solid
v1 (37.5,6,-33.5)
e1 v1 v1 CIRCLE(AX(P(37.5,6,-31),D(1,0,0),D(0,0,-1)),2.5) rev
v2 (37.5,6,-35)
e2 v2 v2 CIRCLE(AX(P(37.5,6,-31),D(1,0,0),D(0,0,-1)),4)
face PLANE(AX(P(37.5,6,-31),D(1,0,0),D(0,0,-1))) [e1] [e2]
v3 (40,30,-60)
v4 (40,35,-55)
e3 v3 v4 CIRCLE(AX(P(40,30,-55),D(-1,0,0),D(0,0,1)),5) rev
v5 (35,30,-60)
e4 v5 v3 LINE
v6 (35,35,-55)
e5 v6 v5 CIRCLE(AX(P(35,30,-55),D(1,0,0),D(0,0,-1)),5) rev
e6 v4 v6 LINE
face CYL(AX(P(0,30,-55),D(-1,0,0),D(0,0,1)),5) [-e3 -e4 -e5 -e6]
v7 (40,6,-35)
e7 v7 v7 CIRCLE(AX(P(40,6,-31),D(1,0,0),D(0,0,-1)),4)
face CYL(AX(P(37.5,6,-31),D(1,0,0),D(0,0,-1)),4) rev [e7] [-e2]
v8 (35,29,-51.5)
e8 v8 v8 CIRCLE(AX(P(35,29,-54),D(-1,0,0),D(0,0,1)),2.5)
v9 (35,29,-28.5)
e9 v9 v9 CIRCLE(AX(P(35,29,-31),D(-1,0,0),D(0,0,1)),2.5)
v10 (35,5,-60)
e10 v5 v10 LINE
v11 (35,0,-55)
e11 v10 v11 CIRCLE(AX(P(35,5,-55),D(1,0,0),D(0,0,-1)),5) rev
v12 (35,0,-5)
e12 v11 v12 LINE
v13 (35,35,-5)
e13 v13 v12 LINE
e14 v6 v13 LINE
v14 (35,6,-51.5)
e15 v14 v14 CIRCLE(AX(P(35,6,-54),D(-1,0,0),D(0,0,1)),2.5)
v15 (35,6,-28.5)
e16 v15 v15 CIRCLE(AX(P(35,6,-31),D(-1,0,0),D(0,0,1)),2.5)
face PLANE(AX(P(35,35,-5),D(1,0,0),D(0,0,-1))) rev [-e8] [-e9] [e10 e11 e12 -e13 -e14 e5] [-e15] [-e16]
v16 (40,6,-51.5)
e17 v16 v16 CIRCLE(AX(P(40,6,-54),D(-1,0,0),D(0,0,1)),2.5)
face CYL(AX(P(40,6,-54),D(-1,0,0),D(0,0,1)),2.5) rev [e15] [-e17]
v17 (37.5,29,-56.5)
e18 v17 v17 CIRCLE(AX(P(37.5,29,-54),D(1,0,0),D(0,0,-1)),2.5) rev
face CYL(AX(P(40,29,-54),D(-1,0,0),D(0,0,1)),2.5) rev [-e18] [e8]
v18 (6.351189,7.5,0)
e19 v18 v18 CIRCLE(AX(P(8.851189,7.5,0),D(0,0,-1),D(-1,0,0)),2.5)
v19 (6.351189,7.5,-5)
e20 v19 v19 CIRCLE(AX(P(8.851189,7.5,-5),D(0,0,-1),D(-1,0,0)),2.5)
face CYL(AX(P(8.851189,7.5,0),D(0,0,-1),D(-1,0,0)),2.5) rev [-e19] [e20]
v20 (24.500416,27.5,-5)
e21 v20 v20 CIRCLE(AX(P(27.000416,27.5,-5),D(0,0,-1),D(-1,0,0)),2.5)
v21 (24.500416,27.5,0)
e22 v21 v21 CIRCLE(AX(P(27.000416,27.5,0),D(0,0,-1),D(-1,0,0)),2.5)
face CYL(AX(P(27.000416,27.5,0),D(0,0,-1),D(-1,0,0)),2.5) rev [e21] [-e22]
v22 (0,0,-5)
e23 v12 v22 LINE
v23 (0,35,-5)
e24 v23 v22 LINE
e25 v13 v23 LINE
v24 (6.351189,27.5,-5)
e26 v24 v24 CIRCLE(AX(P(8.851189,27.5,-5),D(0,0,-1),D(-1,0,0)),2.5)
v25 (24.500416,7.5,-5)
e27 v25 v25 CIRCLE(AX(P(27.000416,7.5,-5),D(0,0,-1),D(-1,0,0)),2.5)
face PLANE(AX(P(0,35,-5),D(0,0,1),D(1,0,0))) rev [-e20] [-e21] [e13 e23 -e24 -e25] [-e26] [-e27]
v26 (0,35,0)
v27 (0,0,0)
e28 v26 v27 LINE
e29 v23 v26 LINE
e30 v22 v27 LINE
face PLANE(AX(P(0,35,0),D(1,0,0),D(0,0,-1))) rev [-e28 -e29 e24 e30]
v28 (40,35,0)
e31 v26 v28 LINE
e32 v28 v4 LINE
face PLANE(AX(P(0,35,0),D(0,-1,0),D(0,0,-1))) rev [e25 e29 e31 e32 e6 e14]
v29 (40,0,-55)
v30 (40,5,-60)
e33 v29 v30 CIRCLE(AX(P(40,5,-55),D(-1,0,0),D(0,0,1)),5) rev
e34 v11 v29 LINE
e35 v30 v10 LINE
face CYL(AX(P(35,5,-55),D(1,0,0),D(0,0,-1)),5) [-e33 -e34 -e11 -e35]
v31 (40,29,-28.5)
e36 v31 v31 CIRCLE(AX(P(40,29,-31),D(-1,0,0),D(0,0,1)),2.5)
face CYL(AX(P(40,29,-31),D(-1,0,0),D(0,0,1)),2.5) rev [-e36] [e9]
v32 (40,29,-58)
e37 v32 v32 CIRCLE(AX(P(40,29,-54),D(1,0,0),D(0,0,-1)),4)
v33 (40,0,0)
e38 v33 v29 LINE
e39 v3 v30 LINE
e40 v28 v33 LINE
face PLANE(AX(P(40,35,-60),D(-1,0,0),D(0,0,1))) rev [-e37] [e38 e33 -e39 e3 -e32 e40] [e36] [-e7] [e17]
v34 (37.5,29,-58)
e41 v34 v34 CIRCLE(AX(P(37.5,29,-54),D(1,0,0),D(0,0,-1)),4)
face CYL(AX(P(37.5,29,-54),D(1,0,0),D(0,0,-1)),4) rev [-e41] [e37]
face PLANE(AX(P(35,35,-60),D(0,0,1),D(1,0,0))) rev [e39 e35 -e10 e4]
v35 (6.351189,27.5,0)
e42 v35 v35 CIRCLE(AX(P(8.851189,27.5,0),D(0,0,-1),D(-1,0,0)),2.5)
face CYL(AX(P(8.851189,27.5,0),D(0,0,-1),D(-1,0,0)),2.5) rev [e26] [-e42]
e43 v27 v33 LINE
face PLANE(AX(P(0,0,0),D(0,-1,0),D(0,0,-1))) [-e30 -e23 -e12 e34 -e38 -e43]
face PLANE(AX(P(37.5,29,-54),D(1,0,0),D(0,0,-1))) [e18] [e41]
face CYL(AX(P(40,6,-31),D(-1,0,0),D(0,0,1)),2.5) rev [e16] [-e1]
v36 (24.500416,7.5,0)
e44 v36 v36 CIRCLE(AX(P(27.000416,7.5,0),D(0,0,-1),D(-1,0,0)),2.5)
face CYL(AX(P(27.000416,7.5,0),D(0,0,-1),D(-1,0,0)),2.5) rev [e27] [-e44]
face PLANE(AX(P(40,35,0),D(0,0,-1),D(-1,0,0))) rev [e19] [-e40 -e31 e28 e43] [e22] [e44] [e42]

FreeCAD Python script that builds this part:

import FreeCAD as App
import Part
import Sketcher
from FreeCAD import Vector


def edges_at(feature, points):
    """Names of the edges that pass closest to the given points."""
    edges = feature.Shape.Edges
    near = lambda p: min(range(len(edges)), key=lambda i: edges[i].distToShape(Part.Vertex(*p))[0])
    return sorted({f"Edge{near(p) + 1}" for p in points})


def add_polygon(sketch, points):
    """Adds a closed chain of lines whose ends are joined by coincident constraints."""
    first, n = sketch.GeometryCount, len(points)
    for a, b in zip(points, points[1:] + points[:1]):
        sketch.addGeometry(Part.LineSegment(App.Vector(*a, 0), App.Vector(*b, 0)), False)
    for i in range(n):
        sketch.addConstraint(Sketcher.Constraint("Coincident", first + i, 2, first + (i + 1) % n, 1))

doc = App.newDocument("Part")
body = doc.addObject("PartDesign::Body", "Body")

# Sketch on XZ plane
sketch1 = body.newObject("Sketcher::SketchObject", "Sketch")
sketch1.AttachmentSupport = (doc.getObject("XZ_Plane"), [""])
sketch1.MapMode = "FlatFace"
add_polygon(sketch1, [(0, -5), (0, 0), (40, 0), (40, -60), (35, -60), (35, -5)])  # lines 0-5
sketch1.addConstraint([
    Sketcher.Constraint("Vertical", 0),
    Sketcher.Constraint("Horizontal", 1),
    Sketcher.Constraint("Vertical", 2),
    Sketcher.Constraint("Horizontal", 3),
    Sketcher.Constraint("Vertical", 4),
    Sketcher.Constraint("Horizontal", 5),
    Sketcher.Constraint("Coincident", 0, 2, -1, 1),
    Sketcher.Constraint("Equal", 3, 0),
    Sketcher.Constraint("DistanceX", 1, 1, 1, 2, 40.0),
    Sketcher.Constraint("DistanceX", 3, 2, 3, 1, 5.0),
    Sketcher.Constraint("DistanceY", 2, 2, 2, 1, 60.0),
])
pad1 = body.newObject("PartDesign::Pad", "Pad")
pad1.Profile = sketch1
pad1.Length = 35
pad1.Reversed = True
doc.recompute()

fillet = body.newObject("PartDesign::Fillet", "Fillet")
fillet.Base = (pad1, edges_at(pad1, [(37.5, 35, -60), (37.5, 0, -60)]))
fillet.Radius = 5

# Sketch on XY plane
sketch2 = body.newObject("Sketcher::SketchObject", "Sketch001")
sketch2.AttachmentSupport = (doc.getObject("XY_Plane"), [""])
sketch2.MapMode = "FlatFace"
sketch2.AttachmentOffset = App.Placement(Vector(0, 0, -5), App.Rotation())
sketch2.addGeometry([
    Part.Circle(Vector(27, 27.5, 0), Vector(0, 0, 1), 2.5),
    Part.Circle(Vector(8.9, 27.5, 0), Vector(0, 0, 1), 2.5),
    Part.Circle(Vector(27, 7.5, 0), Vector(0, 0, 1), 2.5),
    Part.Circle(Vector(8.9, 7.5, 0), Vector(0, 0, 1), 2.5),
], False)
sketch2.addConstraint([
    Sketcher.Constraint("Equal", 0, 1),
    Sketcher.Constraint("Equal", 1, 2),
    Sketcher.Constraint("Equal", 2, 3),
    Sketcher.Constraint("Horizontal", 0, 3, 1, 3),
    Sketcher.Constraint("Horizontal", 2, 3, 3, 3),
    Sketcher.Constraint("Vertical", 0, 3, 2, 3),
    Sketcher.Constraint("Vertical", 1, 3, 3, 3),
    Sketcher.Constraint("Diameter", 0, 5.0),
    Sketcher.Constraint("DistanceY", 2, 3, 0, 3, 20.0),
    Sketcher.Constraint("DistanceY", -1, 1, 0, 3, 27.5),
    Sketcher.Constraint("DistanceX", -1, 1, 1, 3, 8.851189),
    Sketcher.Constraint("DistanceX", -1, 1, 0, 3, 27.000416),
])
pocket1 = body.newObject("PartDesign::Pocket", "Pocket")
pocket1.Profile = sketch2
pocket1.Type = "ThroughAll"
pocket1.Reversed = True

# Sketch on YZ plane
sketch3 = body.newObject("Sketcher::SketchObject", "Sketch002")
sketch3.AttachmentSupport = (doc.getObject("YZ_Plane"), [""])
sketch3.MapMode = "FlatFace"
sketch3.AttachmentOffset = App.Placement(Vector(0, 0, 35), App.Rotation())
sketch3.addGeometry([
    Part.Circle(Vector(29, -31, 0), Vector(0, 0, 1), 2.5),
    Part.Circle(Vector(6, -54, 0), Vector(0, 0, 1), 2.5),
    Part.Circle(Vector(29, -54, 0), Vector(0, 0, 1), 2.5),
    Part.Circle(Vector(6, -31, 0), Vector(0, 0, 1), 2.5),
], False)
sketch3.addConstraint([
    Sketcher.Constraint("Equal", 0, 1),
    Sketcher.Constraint("Equal", 1, 2),
    Sketcher.Constraint("Equal", 2, 3),
    Sketcher.Constraint("Horizontal", 1, 3, 2, 3),
    Sketcher.Constraint("Horizontal", 0, 3, 3, 3),
    Sketcher.Constraint("Vertical", 0, 3, 2, 3),
    Sketcher.Constraint("Vertical", 1, 3, 3, 3),
    Sketcher.Constraint("Diameter", 0, 5.0),
    Sketcher.Constraint("DistanceX", -1, 1, 0, 3, 29.0),
    Sketcher.Constraint("DistanceY", 0, 3, -1, 1, 31.0),
    Sketcher.Constraint("DistanceX", -1, 1, 1, 3, 6.0),
    Sketcher.Constraint("DistanceY", 1, 3, -1, 1, 54.0),
])
pocket2 = body.newObject("PartDesign::Pocket", "Pocket001")
pocket2.Profile = sketch3
pocket2.Type = "ThroughAll"
pocket2.Reversed = True

# Sketch on YZ plane
sketch4 = body.newObject("Sketcher::SketchObject", "Sketch003")
sketch4.AttachmentSupport = (doc.getObject("YZ_Plane"), [""])
sketch4.MapMode = "FlatFace"
sketch4.AttachmentOffset = App.Placement(Vector(0, 0, 40), App.Rotation())
sketch4.addGeometry([
    Part.Circle(Vector(29, -54, 0), Vector(0, 0, 1), 4),
    Part.Circle(Vector(6, -31, 0), Vector(0, 0, 1), 4),
], False)
sketch4.addConstraint([
    Sketcher.Constraint("Equal", 0, 1),
    Sketcher.Constraint("Diameter", 0, 8.0),
    Sketcher.Constraint("DistanceX", -1, 1, 0, 3, 29.0),
    Sketcher.Constraint("DistanceY", 0, 3, -1, 1, 54.0),
    Sketcher.Constraint("DistanceX", -1, 1, 1, 3, 6.0),
    Sketcher.Constraint("DistanceY", 1, 3, -1, 1, 31.0),
])
pocket3 = body.newObject("PartDesign::Pocket", "Pocket002")
pocket3.Profile = sketch4
pocket3.Length = 2.5

doc.recompute()
